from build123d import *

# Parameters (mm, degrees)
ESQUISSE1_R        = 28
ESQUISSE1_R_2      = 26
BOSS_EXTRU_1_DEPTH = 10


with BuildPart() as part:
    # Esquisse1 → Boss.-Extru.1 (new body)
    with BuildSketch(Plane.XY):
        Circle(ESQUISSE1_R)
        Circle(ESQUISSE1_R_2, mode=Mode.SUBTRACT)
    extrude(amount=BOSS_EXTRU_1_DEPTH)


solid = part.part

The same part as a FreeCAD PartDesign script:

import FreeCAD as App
import Part
import Sketcher

doc = App.newDocument("Part")
body = doc.addObject("PartDesign::Body", "Body")

# Sketch on XY plane
sketch1 = body.newObject("Sketcher::SketchObject", "Sketch")
sketch1.AttachmentSupport = (doc.getObject("XY_Plane"), [""])
sketch1.MapMode = "FlatFace"
sketch1.addGeometry([
    Part.Circle(App.Vector(0, 0, 0), App.Vector(0, 0, 1), 28),
    Part.Circle(App.Vector(0, 0, 0), App.Vector(0, 0, 1), 26),
], False)
sketch1.addConstraint([
    Sketcher.Constraint("Coincident", 0, 3, -1, 1),
    Sketcher.Constraint("Coincident", 1, 3, -1, 1),
    Sketcher.Constraint("Diameter", 0, 56.0),
    Sketcher.Constraint("Diameter", 1, 52.0),
])
pad1 = body.newObject("PartDesign::Pad", "Pad")
pad1.Profile = sketch1
pad1.Length = 10

doc.recompute()
